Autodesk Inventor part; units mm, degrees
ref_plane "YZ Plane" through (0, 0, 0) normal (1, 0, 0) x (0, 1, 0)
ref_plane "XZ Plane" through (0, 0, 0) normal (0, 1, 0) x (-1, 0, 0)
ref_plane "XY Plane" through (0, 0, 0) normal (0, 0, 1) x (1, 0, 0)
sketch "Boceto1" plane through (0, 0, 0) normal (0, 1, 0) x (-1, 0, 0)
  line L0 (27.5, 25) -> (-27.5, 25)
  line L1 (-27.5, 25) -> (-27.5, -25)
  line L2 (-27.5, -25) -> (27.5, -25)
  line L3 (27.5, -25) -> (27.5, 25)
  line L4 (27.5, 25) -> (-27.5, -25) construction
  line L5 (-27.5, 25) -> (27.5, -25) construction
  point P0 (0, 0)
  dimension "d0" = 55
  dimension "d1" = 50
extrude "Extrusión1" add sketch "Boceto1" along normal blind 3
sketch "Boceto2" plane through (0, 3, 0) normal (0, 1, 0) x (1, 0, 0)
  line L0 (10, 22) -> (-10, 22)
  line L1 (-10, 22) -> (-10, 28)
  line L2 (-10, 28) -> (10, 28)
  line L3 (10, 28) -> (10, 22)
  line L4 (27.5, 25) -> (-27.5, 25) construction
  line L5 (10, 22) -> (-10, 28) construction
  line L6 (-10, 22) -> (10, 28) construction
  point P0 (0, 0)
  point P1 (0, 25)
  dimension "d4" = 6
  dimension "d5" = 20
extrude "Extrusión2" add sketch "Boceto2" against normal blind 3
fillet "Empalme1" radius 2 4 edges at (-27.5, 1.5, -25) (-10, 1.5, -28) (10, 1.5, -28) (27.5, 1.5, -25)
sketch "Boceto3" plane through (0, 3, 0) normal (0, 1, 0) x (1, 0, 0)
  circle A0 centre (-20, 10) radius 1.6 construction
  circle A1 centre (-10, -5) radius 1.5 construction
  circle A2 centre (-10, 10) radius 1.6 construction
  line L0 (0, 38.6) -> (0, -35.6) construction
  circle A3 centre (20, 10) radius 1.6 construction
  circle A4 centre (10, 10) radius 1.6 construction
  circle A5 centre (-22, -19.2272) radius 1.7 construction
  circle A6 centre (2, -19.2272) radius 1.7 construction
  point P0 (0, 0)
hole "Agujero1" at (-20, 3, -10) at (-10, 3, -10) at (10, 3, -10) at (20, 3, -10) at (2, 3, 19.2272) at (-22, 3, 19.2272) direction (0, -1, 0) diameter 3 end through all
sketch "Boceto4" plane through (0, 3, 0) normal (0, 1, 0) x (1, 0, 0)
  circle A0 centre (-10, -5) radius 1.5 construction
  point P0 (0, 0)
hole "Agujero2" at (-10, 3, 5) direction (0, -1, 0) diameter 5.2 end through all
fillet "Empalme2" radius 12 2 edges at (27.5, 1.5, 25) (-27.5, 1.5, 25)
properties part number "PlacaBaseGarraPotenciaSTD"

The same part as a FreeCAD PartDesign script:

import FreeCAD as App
import Part
import Sketcher

V = App.Vector
Q = App.Units.Quantity


def edges_at(feature, points):
    """Names of the edges that pass closest to the given points."""
    edges = feature.Shape.Edges
    near = lambda p: min(range(len(edges)), key=lambda i: edges[i].distToShape(Part.Vertex(*p))[0])
    return sorted({f"Edge{near(p) + 1}" for p in points})


def add_polygon(sketch, points):
    """Adds a closed chain of lines whose ends are joined by coincident constraints."""
    first, n = sketch.GeometryCount, len(points)
    for a, b in zip(points, points[1:] + points[:1]):
        sketch.addGeometry(Part.LineSegment(App.Vector(*a, 0), App.Vector(*b, 0)), False)
    for i in range(n):
        sketch.addConstraint(Sketcher.Constraint("Coincident", first + i, 2, first + (i + 1) % n, 1))

doc = App.newDocument("Part")
params = doc.addObject("Spreadsheet::Sheet", "Params")
for row, (alias, value) in enumerate([
    ("sketch1_width", "55 mm"),
    ("sketch1_height", "50 mm"),
    ("pad1_length", "3 mm"),
    ("sketch2_width", "20 mm"),
    ("sketch2_height", "6 mm"),
    ("pad2_length", "3 mm"),
    ("fillet_radius", "2 mm"),
    ("sketch3_diameter", "3 mm"),
    ("hole_diameter", "3 mm"),
    ("sketch4_diameter", "5.2 mm"),
    ("hole2_diameter", "5.2 mm"),
    ("fillet2_radius", "12 mm"),
], start=1):
    params.set(f"A{row}", alias)
    params.set(f"B{row}", "=" + value)
    params.setAlias(f"B{row}", alias)

body = doc.addObject("PartDesign::Body", "Body")

sketch1 = doc.addObject("Sketcher::SketchObject", "Sketch")
body.addObject(sketch1)
sketch1.AttachmentSupport = (doc.XZ_Plane, [""])
sketch1.MapMode = "FlatFace"
add_polygon(sketch1, [(-27.5, -25), (-27.5, 25), (27.5, 25), (27.5, -25)])
sketch1.addConstraint(Sketcher.Constraint("Vertical", 0))
sketch1.addConstraint(Sketcher.Constraint("Horizontal", 1))
sketch1.addConstraint(Sketcher.Constraint("Vertical", 2))
sketch1.addConstraint(Sketcher.Constraint("Horizontal", 3))
sketch1.addConstraint(Sketcher.Constraint("Symmetric", 0, 2, 2, 2, -1, 1))
sketch1.addConstraint(Sketcher.Constraint("DistanceX", 1, 1, 1, 2, Q("55 mm")))
sketch1.addConstraint(Sketcher.Constraint("DistanceY", 0, 1, 0, 2, Q("50 mm")))
sketch1.setExpression("Constraints[9]", "Params.sketch1_width")
sketch1.setExpression("Constraints[10]", "Params.sketch1_height")
pad1 = doc.addObject("PartDesign::Pad", "Pad")
body.addObject(pad1)
pad1.Profile = sketch1
pad1.setExpression("Length", "Params.pad1_length")
pad1.Reversed = True

sketch2 = doc.addObject("Sketcher::SketchObject", "Sketch001")
body.addObject(sketch2)
sketch2.AttachmentSupport = (doc.XZ_Plane, [""])
sketch2.MapMode = "FlatFace"
sketch2.AttachmentOffset = App.Placement(V(0, 0, -3), App.Rotation())
add_polygon(sketch2, [(-10, -22), (10, -22), (10, -28), (-10, -28)])
sketch2.addConstraint(Sketcher.Constraint("Horizontal", 0))
sketch2.addConstraint(Sketcher.Constraint("Vertical", 1))
sketch2.addConstraint(Sketcher.Constraint("Horizontal", 2))
sketch2.addConstraint(Sketcher.Constraint("Vertical", 3))
sketch2.addConstraint(Sketcher.Constraint("DistanceX", 0, 1, 0, 2, Q("20 mm")))
sketch2.addConstraint(Sketcher.Constraint("DistanceY", 1, 2, 1, 1, Q("6 mm")))
sketch2.addConstraint(Sketcher.Constraint("DistanceX", -1, 1, 0, 2, Q("10 mm")))
sketch2.addConstraint(Sketcher.Constraint("DistanceY", 0, 2, -1, 1, Q("22 mm")))
sketch2.setExpression("Constraints[8]", "Params.sketch2_width")
sketch2.setExpression("Constraints[9]", "Params.sketch2_height")
pad2 = doc.addObject("PartDesign::Pad", "Pad001")
body.addObject(pad2)
pad2.Profile = sketch2
pad2.setExpression("Length", "Params.pad2_length")
doc.recompute()

fillet = doc.addObject("PartDesign::Fillet", "Fillet")
body.addObject(fillet)
fillet.Base = (pad2, edges_at(pad2, [
    (-27.5, 1.5, -25),
    (-10, 1.5, -28),
    (10, 1.5, -28),
    (27.5, 1.5, -25),
]))
fillet.setExpression("Radius", "Params.fillet_radius")

sketch3 = doc.addObject("Sketcher::SketchObject", "Sketch002")
body.addObject(sketch3)
sketch3.AttachmentSupport = (doc.XZ_Plane, [""])
sketch3.MapMode = "FlatFace"
sketch3.AttachmentOffset = App.Placement(V(0, 0, -3), App.Rotation())
sketch3.addGeometry(Part.Circle(V(-20, -10, 0), V(0, 0, 1), 1.5), False)
sketch3.addGeometry(Part.Circle(V(-10, -10, 0), V(0, 0, 1), 1.5), False)
sketch3.addGeometry(Part.Circle(V(10, -10, 0), V(0, 0, 1), 1.5), False)
sketch3.addGeometry(Part.Circle(V(20, -10, 0), V(0, 0, 1), 1.5), False)
sketch3.addGeometry(Part.Circle(V(2, 19.2272, 0), V(0, 0, 1), 1.5), False)
sketch3.addGeometry(Part.Circle(V(-22, 19.2272, 0), V(0, 0, 1), 1.5), False)
sketch3.addConstraint(Sketcher.Constraint("Equal", 0, 1))
sketch3.addConstraint(Sketcher.Constraint("Equal", 1, 2))
sketch3.addConstraint(Sketcher.Constraint("Equal", 2, 3))
sketch3.addConstraint(Sketcher.Constraint("Equal", 3, 4))
sketch3.addConstraint(Sketcher.Constraint("Equal", 4, 5))
sketch3.addConstraint(Sketcher.Constraint("Symmetric", 1, 3, 2, 3, -2))
sketch3.addConstraint(Sketcher.Constraint("Symmetric", 0, 3, 3, 3, -2))
sketch3.addConstraint(Sketcher.Constraint("Horizontal", 0, 3, 1, 3))
sketch3.addConstraint(Sketcher.Constraint("Horizontal", 4, 3, 5, 3))
sketch3.addConstraint(Sketcher.Constraint("Diameter", 0, Q("3 mm")))
sketch3.addConstraint(Sketcher.Constraint("DistanceX", 0, 3, -1, 1, Q("20 mm")))
sketch3.addConstraint(Sketcher.Constraint("DistanceY", 0, 3, -1, 1, Q("10 mm")))
sketch3.addConstraint(Sketcher.Constraint("DistanceX", 1, 3, -1, 1, Q("10 mm")))
sketch3.addConstraint(Sketcher.Constraint("DistanceX", -1, 1, 4, 3, Q("2 mm")))
sketch3.addConstraint(Sketcher.Constraint("DistanceX", 5, 3, -1, 1, Q("22 mm")))
sketch3.addConstraint(Sketcher.Constraint("DistanceY", -1, 1, 4, 3, Q("19.2272 mm")))
sketch3.setExpression("Constraints[9]", "Params.sketch3_diameter")
doc.recompute()
hole = doc.addObject("PartDesign::Hole", "Hole")
body.addObject(hole)
hole.Profile = sketch3
hole.ThreadType = "None"
hole.setExpression("Diameter", "Params.hole_diameter")
hole.DepthType = "ThroughAll"
hole.Reversed = True

sketch4 = doc.addObject("Sketcher::SketchObject", "Sketch003")
body.addObject(sketch4)
sketch4.AttachmentSupport = (doc.XZ_Plane, [""])
sketch4.MapMode = "FlatFace"
sketch4.AttachmentOffset = App.Placement(V(0, 0, -3), App.Rotation())
sketch4.addGeometry(Part.Circle(V(-10, 5, 0), V(0, 0, 1), 2.6), False)
sketch4.addConstraint(Sketcher.Constraint("Diameter", 0, Q("5.2 mm")))
sketch4.addConstraint(Sketcher.Constraint("DistanceX", 0, 3, -1, 1, Q("10 mm")))
sketch4.addConstraint(Sketcher.Constraint("DistanceY", -1, 1, 0, 3, Q("5 mm")))
sketch4.setExpression("Constraints[0]", "Params.sketch4_diameter")
doc.recompute()
hole2 = doc.addObject("PartDesign::Hole", "Hole001")
body.addObject(hole2)
hole2.Profile = sketch4
hole2.ThreadType = "None"
hole2.setExpression("Diameter", "Params.hole2_diameter")
hole2.DepthType = "ThroughAll"
hole2.Reversed = True
doc.recompute()

fillet2 = doc.addObject("PartDesign::Fillet", "Fillet001")
body.addObject(fillet2)
fillet2.Base = (hole2, edges_at(hole2, [(27.5, 1.5, 25), (-27.5, 1.5, 25)]))
fillet2.setExpression("Radius", "Params.fillet2_radius")

doc.recompute()
